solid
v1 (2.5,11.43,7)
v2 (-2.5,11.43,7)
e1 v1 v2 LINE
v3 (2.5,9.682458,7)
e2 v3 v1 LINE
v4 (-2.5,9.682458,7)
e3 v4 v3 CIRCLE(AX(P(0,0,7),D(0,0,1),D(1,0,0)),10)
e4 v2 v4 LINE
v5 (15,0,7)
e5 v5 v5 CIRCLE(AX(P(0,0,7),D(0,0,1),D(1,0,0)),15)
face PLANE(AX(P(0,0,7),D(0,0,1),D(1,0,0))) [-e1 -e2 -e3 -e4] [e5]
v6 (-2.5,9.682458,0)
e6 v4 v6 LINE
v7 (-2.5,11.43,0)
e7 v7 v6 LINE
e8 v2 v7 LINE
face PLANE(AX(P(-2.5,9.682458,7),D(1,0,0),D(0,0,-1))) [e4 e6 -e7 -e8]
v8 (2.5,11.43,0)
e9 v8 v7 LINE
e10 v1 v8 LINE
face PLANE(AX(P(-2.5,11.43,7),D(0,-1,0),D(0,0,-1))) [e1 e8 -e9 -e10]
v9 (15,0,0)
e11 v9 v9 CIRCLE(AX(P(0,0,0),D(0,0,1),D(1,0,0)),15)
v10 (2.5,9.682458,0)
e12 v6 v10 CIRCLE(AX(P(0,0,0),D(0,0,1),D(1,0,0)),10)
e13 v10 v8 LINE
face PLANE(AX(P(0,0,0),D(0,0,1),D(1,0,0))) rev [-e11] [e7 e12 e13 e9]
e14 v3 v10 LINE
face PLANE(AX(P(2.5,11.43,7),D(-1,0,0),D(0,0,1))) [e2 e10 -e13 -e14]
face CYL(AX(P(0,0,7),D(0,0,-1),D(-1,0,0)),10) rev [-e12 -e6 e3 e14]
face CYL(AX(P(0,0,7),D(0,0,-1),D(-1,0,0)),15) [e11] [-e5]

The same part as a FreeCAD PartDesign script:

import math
import FreeCAD as App
import Part
import Sketcher
from FreeCAD import Vector
Q = App.Units.Quantity

doc = App.newDocument("Part")
body = doc.addObject("PartDesign::Body", "Body")

sketch1 = doc.addObject("Sketcher::SketchObject", "Sketch")
body.addObject(sketch1)
sketch1.AttachmentSupport = (doc.XY_Plane, [""])
sketch1.MapMode = "FlatFace"
sketch1.addGeometry(Part.Circle(Vector(0, 0, 0), Vector(0, 0, 1), 15), False)
sketch1.addGeometry(Part.ArcOfCircle(Part.Circle(Vector(0, 0, 0), Vector(0, 0, 1), 10), math.radians(104), math.radians(436)), False)
sketch1.addGeometry(Part.LineSegment(Vector(-2.5, 9.7, 0), Vector(-2.5, 11.4, 0)), False)
sketch1.addGeometry(Part.LineSegment(Vector(-2.5, 11.4, 0), Vector(2.5, 11.4, 0)), False)
sketch1.addGeometry(Part.LineSegment(Vector(2.5, 11.4, 0), Vector(2.5, 9.7, 0)), False)
sketch1.addConstraint(Sketcher.Constraint("Coincident", 1, 1, 2, 1))
sketch1.addConstraint(Sketcher.Constraint("Coincident", 2, 2, 3, 1))
sketch1.addConstraint(Sketcher.Constraint("Coincident", 3, 2, 4, 1))
sketch1.addConstraint(Sketcher.Constraint("Coincident", 4, 2, 1, 2))
sketch1.addConstraint(Sketcher.Constraint("Vertical", 2))
sketch1.addConstraint(Sketcher.Constraint("Horizontal", 3))
sketch1.addConstraint(Sketcher.Constraint("Vertical", 4))
sketch1.addConstraint(Sketcher.Constraint("Coincident", 0, 3, -1, 1))
sketch1.addConstraint(Sketcher.Constraint("Coincident", 1, 3, -1, 1))
sketch1.addConstraint(Sketcher.Constraint("Horizontal", 1, 1, 4, 2))
sketch1.addConstraint(Sketcher.Constraint("Diameter", 0, Q("30 mm")))
sketch1.addConstraint(Sketcher.Constraint("Radius", 1, Q("10 mm")))
sketch1.addConstraint(Sketcher.Constraint("DistanceX", 3, 1, 3, 2, Q("5 mm")))
sketch1.addConstraint(Sketcher.Constraint("DistanceY", -1, 1, 2, 2, Q("11.43 mm")))
pad1 = doc.addObject("PartDesign::Pad", "Pad")
body.addObject(pad1)
pad1.Profile = sketch1
pad1.Length = 7

doc.recompute()
